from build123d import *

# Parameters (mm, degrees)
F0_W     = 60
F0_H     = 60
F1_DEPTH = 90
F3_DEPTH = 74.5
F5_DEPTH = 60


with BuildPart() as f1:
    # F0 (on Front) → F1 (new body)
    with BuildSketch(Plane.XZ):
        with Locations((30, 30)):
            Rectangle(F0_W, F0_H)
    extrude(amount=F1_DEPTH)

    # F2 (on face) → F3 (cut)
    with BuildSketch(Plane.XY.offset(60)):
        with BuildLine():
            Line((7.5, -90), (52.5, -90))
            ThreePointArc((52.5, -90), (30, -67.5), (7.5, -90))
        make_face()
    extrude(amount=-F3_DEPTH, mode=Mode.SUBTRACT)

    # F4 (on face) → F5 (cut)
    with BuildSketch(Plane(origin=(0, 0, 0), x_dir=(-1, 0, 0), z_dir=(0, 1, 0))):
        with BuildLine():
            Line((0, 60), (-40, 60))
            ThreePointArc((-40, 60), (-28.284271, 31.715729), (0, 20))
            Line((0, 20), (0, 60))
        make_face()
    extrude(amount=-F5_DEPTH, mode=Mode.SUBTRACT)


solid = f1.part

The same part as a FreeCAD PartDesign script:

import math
import FreeCAD as App
import Part
import Sketcher
Q = App.Units.Quantity

doc = App.newDocument("Part")
body = doc.addObject("PartDesign::Body", "Body")

sketch1 = body.newObject("Sketcher::SketchObject", "Sketch")
sketch1.AttachmentSupport = (doc.getObject("XZ_Plane"), [""])
sketch1.MapMode = "FlatFace"
sketch1.addGeometry(Part.LineSegment(App.Vector(0, 60, 0), App.Vector(0, 0, 0)), False)
sketch1.addGeometry(Part.LineSegment(App.Vector(0, 0, 0), App.Vector(60, 0, 0)), False)
sketch1.addGeometry(Part.LineSegment(App.Vector(60, 0, 0), App.Vector(60, 60, 0)), False)
sketch1.addGeometry(Part.LineSegment(App.Vector(60, 60, 0), App.Vector(0, 60, 0)), False)
sketch1.addConstraint(Sketcher.Constraint("Coincident", 0, 2, 1, 1))
sketch1.addConstraint(Sketcher.Constraint("Coincident", 1, 2, 2, 1))
sketch1.addConstraint(Sketcher.Constraint("Coincident", 2, 2, 3, 1))
sketch1.addConstraint(Sketcher.Constraint("Coincident", 3, 2, 0, 1))
sketch1.addConstraint(Sketcher.Constraint("Vertical", 0))
sketch1.addConstraint(Sketcher.Constraint("Horizontal", 1))
sketch1.addConstraint(Sketcher.Constraint("Vertical", 2))
sketch1.addConstraint(Sketcher.Constraint("Horizontal", 3))
sketch1.addConstraint(Sketcher.Constraint("Coincident", 0, 2, -1, 1))
sketch1.addConstraint(Sketcher.Constraint("Equal", 3, 0))
sketch1.addConstraint(Sketcher.Constraint("DistanceX", 1, 1, 1, 2, Q("60 mm")))
pad1 = body.newObject("PartDesign::Pad", "Pad")
pad1.Profile = sketch1
pad1.Length = 90

sketch2 = body.newObject("Sketcher::SketchObject", "Sketch001")
sketch2.AttachmentSupport = (doc.getObject("XY_Plane"), [""])
sketch2.MapMode = "FlatFace"
sketch2.AttachmentOffset = App.Placement(App.Vector(0, 0, 60), App.Rotation())
sketch2.addGeometry(Part.LineSegment(App.Vector(7.5, -90, 0), App.Vector(52.5, -90, 0)), False)
sketch2.addGeometry(Part.ArcOfCircle(Part.Circle(App.Vector(30, -90, 0), App.Vector(0, 0, 1), 22.5), math.radians(0), math.radians(180)), False)
sketch2.addConstraint(Sketcher.Constraint("Coincident", 0, 1, 1, 2))
sketch2.addConstraint(Sketcher.Constraint("Coincident", 1, 1, 0, 2))
sketch2.addConstraint(Sketcher.Constraint("Horizontal", 0))
sketch2.addConstraint(Sketcher.Constraint("Horizontal", 1, 3, 0, 1))
sketch2.addConstraint(Sketcher.Constraint("Radius", 1, Q("22.5 mm")))
sketch2.addConstraint(Sketcher.Constraint("DistanceX", -1, 1, 1, 3, Q("30 mm")))
sketch2.addConstraint(Sketcher.Constraint("DistanceY", 1, 3, -1, 1, Q("90 mm")))
pocket1 = body.newObject("PartDesign::Pocket", "Pocket")
pocket1.Profile = sketch2
pocket1.Length = 74.5

sketch3 = body.newObject("Sketcher::SketchObject", "Sketch002")
sketch3.AttachmentSupport = (doc.getObject("XZ_Plane"), [""])
sketch3.MapMode = "FlatFace"
sketch3.addGeometry(Part.LineSegment(App.Vector(0, 60, 0), App.Vector(40, 60, 0)), False)
sketch3.addGeometry(Part.ArcOfCircle(Part.Circle(App.Vector(-0.000001, 60.000001, 0), App.Vector(0, 0, 1), 40.000001), math.radians(-89.999999), math.radians(-0.000001)), False)
sketch3.addGeometry(Part.LineSegment(App.Vector(0, 20, 0), App.Vector(0, 60, 0)), False)
sketch3.addConstraint(Sketcher.Constraint("Coincident", 0, 2, 1, 2))
sketch3.addConstraint(Sketcher.Constraint("Coincident", 1, 1, 2, 1))
sketch3.addConstraint(Sketcher.Constraint("Coincident", 2, 2, 0, 1))
sketch3.addConstraint(Sketcher.Constraint("Horizontal", 0))
sketch3.addConstraint(Sketcher.Constraint("Vertical", 2))
sketch3.addConstraint(Sketcher.Constraint("Coincident", 2, 2, 1, 3))
sketch3.addConstraint(Sketcher.Constraint("PointOnObject", 1, 3, -2))
sketch3.addConstraint(Sketcher.Constraint("Radius", 1, Q("40.000001 mm")))
sketch3.addConstraint(Sketcher.Constraint("DistanceY", -1, 1, 1, 3, Q("60.000001 mm")))
pocket2 = body.newObject("PartDesign::Pocket", "Pocket001")
pocket2.Profile = sketch3
pocket2.Length = 60
pocket2.Reversed = True

doc.recompute()
